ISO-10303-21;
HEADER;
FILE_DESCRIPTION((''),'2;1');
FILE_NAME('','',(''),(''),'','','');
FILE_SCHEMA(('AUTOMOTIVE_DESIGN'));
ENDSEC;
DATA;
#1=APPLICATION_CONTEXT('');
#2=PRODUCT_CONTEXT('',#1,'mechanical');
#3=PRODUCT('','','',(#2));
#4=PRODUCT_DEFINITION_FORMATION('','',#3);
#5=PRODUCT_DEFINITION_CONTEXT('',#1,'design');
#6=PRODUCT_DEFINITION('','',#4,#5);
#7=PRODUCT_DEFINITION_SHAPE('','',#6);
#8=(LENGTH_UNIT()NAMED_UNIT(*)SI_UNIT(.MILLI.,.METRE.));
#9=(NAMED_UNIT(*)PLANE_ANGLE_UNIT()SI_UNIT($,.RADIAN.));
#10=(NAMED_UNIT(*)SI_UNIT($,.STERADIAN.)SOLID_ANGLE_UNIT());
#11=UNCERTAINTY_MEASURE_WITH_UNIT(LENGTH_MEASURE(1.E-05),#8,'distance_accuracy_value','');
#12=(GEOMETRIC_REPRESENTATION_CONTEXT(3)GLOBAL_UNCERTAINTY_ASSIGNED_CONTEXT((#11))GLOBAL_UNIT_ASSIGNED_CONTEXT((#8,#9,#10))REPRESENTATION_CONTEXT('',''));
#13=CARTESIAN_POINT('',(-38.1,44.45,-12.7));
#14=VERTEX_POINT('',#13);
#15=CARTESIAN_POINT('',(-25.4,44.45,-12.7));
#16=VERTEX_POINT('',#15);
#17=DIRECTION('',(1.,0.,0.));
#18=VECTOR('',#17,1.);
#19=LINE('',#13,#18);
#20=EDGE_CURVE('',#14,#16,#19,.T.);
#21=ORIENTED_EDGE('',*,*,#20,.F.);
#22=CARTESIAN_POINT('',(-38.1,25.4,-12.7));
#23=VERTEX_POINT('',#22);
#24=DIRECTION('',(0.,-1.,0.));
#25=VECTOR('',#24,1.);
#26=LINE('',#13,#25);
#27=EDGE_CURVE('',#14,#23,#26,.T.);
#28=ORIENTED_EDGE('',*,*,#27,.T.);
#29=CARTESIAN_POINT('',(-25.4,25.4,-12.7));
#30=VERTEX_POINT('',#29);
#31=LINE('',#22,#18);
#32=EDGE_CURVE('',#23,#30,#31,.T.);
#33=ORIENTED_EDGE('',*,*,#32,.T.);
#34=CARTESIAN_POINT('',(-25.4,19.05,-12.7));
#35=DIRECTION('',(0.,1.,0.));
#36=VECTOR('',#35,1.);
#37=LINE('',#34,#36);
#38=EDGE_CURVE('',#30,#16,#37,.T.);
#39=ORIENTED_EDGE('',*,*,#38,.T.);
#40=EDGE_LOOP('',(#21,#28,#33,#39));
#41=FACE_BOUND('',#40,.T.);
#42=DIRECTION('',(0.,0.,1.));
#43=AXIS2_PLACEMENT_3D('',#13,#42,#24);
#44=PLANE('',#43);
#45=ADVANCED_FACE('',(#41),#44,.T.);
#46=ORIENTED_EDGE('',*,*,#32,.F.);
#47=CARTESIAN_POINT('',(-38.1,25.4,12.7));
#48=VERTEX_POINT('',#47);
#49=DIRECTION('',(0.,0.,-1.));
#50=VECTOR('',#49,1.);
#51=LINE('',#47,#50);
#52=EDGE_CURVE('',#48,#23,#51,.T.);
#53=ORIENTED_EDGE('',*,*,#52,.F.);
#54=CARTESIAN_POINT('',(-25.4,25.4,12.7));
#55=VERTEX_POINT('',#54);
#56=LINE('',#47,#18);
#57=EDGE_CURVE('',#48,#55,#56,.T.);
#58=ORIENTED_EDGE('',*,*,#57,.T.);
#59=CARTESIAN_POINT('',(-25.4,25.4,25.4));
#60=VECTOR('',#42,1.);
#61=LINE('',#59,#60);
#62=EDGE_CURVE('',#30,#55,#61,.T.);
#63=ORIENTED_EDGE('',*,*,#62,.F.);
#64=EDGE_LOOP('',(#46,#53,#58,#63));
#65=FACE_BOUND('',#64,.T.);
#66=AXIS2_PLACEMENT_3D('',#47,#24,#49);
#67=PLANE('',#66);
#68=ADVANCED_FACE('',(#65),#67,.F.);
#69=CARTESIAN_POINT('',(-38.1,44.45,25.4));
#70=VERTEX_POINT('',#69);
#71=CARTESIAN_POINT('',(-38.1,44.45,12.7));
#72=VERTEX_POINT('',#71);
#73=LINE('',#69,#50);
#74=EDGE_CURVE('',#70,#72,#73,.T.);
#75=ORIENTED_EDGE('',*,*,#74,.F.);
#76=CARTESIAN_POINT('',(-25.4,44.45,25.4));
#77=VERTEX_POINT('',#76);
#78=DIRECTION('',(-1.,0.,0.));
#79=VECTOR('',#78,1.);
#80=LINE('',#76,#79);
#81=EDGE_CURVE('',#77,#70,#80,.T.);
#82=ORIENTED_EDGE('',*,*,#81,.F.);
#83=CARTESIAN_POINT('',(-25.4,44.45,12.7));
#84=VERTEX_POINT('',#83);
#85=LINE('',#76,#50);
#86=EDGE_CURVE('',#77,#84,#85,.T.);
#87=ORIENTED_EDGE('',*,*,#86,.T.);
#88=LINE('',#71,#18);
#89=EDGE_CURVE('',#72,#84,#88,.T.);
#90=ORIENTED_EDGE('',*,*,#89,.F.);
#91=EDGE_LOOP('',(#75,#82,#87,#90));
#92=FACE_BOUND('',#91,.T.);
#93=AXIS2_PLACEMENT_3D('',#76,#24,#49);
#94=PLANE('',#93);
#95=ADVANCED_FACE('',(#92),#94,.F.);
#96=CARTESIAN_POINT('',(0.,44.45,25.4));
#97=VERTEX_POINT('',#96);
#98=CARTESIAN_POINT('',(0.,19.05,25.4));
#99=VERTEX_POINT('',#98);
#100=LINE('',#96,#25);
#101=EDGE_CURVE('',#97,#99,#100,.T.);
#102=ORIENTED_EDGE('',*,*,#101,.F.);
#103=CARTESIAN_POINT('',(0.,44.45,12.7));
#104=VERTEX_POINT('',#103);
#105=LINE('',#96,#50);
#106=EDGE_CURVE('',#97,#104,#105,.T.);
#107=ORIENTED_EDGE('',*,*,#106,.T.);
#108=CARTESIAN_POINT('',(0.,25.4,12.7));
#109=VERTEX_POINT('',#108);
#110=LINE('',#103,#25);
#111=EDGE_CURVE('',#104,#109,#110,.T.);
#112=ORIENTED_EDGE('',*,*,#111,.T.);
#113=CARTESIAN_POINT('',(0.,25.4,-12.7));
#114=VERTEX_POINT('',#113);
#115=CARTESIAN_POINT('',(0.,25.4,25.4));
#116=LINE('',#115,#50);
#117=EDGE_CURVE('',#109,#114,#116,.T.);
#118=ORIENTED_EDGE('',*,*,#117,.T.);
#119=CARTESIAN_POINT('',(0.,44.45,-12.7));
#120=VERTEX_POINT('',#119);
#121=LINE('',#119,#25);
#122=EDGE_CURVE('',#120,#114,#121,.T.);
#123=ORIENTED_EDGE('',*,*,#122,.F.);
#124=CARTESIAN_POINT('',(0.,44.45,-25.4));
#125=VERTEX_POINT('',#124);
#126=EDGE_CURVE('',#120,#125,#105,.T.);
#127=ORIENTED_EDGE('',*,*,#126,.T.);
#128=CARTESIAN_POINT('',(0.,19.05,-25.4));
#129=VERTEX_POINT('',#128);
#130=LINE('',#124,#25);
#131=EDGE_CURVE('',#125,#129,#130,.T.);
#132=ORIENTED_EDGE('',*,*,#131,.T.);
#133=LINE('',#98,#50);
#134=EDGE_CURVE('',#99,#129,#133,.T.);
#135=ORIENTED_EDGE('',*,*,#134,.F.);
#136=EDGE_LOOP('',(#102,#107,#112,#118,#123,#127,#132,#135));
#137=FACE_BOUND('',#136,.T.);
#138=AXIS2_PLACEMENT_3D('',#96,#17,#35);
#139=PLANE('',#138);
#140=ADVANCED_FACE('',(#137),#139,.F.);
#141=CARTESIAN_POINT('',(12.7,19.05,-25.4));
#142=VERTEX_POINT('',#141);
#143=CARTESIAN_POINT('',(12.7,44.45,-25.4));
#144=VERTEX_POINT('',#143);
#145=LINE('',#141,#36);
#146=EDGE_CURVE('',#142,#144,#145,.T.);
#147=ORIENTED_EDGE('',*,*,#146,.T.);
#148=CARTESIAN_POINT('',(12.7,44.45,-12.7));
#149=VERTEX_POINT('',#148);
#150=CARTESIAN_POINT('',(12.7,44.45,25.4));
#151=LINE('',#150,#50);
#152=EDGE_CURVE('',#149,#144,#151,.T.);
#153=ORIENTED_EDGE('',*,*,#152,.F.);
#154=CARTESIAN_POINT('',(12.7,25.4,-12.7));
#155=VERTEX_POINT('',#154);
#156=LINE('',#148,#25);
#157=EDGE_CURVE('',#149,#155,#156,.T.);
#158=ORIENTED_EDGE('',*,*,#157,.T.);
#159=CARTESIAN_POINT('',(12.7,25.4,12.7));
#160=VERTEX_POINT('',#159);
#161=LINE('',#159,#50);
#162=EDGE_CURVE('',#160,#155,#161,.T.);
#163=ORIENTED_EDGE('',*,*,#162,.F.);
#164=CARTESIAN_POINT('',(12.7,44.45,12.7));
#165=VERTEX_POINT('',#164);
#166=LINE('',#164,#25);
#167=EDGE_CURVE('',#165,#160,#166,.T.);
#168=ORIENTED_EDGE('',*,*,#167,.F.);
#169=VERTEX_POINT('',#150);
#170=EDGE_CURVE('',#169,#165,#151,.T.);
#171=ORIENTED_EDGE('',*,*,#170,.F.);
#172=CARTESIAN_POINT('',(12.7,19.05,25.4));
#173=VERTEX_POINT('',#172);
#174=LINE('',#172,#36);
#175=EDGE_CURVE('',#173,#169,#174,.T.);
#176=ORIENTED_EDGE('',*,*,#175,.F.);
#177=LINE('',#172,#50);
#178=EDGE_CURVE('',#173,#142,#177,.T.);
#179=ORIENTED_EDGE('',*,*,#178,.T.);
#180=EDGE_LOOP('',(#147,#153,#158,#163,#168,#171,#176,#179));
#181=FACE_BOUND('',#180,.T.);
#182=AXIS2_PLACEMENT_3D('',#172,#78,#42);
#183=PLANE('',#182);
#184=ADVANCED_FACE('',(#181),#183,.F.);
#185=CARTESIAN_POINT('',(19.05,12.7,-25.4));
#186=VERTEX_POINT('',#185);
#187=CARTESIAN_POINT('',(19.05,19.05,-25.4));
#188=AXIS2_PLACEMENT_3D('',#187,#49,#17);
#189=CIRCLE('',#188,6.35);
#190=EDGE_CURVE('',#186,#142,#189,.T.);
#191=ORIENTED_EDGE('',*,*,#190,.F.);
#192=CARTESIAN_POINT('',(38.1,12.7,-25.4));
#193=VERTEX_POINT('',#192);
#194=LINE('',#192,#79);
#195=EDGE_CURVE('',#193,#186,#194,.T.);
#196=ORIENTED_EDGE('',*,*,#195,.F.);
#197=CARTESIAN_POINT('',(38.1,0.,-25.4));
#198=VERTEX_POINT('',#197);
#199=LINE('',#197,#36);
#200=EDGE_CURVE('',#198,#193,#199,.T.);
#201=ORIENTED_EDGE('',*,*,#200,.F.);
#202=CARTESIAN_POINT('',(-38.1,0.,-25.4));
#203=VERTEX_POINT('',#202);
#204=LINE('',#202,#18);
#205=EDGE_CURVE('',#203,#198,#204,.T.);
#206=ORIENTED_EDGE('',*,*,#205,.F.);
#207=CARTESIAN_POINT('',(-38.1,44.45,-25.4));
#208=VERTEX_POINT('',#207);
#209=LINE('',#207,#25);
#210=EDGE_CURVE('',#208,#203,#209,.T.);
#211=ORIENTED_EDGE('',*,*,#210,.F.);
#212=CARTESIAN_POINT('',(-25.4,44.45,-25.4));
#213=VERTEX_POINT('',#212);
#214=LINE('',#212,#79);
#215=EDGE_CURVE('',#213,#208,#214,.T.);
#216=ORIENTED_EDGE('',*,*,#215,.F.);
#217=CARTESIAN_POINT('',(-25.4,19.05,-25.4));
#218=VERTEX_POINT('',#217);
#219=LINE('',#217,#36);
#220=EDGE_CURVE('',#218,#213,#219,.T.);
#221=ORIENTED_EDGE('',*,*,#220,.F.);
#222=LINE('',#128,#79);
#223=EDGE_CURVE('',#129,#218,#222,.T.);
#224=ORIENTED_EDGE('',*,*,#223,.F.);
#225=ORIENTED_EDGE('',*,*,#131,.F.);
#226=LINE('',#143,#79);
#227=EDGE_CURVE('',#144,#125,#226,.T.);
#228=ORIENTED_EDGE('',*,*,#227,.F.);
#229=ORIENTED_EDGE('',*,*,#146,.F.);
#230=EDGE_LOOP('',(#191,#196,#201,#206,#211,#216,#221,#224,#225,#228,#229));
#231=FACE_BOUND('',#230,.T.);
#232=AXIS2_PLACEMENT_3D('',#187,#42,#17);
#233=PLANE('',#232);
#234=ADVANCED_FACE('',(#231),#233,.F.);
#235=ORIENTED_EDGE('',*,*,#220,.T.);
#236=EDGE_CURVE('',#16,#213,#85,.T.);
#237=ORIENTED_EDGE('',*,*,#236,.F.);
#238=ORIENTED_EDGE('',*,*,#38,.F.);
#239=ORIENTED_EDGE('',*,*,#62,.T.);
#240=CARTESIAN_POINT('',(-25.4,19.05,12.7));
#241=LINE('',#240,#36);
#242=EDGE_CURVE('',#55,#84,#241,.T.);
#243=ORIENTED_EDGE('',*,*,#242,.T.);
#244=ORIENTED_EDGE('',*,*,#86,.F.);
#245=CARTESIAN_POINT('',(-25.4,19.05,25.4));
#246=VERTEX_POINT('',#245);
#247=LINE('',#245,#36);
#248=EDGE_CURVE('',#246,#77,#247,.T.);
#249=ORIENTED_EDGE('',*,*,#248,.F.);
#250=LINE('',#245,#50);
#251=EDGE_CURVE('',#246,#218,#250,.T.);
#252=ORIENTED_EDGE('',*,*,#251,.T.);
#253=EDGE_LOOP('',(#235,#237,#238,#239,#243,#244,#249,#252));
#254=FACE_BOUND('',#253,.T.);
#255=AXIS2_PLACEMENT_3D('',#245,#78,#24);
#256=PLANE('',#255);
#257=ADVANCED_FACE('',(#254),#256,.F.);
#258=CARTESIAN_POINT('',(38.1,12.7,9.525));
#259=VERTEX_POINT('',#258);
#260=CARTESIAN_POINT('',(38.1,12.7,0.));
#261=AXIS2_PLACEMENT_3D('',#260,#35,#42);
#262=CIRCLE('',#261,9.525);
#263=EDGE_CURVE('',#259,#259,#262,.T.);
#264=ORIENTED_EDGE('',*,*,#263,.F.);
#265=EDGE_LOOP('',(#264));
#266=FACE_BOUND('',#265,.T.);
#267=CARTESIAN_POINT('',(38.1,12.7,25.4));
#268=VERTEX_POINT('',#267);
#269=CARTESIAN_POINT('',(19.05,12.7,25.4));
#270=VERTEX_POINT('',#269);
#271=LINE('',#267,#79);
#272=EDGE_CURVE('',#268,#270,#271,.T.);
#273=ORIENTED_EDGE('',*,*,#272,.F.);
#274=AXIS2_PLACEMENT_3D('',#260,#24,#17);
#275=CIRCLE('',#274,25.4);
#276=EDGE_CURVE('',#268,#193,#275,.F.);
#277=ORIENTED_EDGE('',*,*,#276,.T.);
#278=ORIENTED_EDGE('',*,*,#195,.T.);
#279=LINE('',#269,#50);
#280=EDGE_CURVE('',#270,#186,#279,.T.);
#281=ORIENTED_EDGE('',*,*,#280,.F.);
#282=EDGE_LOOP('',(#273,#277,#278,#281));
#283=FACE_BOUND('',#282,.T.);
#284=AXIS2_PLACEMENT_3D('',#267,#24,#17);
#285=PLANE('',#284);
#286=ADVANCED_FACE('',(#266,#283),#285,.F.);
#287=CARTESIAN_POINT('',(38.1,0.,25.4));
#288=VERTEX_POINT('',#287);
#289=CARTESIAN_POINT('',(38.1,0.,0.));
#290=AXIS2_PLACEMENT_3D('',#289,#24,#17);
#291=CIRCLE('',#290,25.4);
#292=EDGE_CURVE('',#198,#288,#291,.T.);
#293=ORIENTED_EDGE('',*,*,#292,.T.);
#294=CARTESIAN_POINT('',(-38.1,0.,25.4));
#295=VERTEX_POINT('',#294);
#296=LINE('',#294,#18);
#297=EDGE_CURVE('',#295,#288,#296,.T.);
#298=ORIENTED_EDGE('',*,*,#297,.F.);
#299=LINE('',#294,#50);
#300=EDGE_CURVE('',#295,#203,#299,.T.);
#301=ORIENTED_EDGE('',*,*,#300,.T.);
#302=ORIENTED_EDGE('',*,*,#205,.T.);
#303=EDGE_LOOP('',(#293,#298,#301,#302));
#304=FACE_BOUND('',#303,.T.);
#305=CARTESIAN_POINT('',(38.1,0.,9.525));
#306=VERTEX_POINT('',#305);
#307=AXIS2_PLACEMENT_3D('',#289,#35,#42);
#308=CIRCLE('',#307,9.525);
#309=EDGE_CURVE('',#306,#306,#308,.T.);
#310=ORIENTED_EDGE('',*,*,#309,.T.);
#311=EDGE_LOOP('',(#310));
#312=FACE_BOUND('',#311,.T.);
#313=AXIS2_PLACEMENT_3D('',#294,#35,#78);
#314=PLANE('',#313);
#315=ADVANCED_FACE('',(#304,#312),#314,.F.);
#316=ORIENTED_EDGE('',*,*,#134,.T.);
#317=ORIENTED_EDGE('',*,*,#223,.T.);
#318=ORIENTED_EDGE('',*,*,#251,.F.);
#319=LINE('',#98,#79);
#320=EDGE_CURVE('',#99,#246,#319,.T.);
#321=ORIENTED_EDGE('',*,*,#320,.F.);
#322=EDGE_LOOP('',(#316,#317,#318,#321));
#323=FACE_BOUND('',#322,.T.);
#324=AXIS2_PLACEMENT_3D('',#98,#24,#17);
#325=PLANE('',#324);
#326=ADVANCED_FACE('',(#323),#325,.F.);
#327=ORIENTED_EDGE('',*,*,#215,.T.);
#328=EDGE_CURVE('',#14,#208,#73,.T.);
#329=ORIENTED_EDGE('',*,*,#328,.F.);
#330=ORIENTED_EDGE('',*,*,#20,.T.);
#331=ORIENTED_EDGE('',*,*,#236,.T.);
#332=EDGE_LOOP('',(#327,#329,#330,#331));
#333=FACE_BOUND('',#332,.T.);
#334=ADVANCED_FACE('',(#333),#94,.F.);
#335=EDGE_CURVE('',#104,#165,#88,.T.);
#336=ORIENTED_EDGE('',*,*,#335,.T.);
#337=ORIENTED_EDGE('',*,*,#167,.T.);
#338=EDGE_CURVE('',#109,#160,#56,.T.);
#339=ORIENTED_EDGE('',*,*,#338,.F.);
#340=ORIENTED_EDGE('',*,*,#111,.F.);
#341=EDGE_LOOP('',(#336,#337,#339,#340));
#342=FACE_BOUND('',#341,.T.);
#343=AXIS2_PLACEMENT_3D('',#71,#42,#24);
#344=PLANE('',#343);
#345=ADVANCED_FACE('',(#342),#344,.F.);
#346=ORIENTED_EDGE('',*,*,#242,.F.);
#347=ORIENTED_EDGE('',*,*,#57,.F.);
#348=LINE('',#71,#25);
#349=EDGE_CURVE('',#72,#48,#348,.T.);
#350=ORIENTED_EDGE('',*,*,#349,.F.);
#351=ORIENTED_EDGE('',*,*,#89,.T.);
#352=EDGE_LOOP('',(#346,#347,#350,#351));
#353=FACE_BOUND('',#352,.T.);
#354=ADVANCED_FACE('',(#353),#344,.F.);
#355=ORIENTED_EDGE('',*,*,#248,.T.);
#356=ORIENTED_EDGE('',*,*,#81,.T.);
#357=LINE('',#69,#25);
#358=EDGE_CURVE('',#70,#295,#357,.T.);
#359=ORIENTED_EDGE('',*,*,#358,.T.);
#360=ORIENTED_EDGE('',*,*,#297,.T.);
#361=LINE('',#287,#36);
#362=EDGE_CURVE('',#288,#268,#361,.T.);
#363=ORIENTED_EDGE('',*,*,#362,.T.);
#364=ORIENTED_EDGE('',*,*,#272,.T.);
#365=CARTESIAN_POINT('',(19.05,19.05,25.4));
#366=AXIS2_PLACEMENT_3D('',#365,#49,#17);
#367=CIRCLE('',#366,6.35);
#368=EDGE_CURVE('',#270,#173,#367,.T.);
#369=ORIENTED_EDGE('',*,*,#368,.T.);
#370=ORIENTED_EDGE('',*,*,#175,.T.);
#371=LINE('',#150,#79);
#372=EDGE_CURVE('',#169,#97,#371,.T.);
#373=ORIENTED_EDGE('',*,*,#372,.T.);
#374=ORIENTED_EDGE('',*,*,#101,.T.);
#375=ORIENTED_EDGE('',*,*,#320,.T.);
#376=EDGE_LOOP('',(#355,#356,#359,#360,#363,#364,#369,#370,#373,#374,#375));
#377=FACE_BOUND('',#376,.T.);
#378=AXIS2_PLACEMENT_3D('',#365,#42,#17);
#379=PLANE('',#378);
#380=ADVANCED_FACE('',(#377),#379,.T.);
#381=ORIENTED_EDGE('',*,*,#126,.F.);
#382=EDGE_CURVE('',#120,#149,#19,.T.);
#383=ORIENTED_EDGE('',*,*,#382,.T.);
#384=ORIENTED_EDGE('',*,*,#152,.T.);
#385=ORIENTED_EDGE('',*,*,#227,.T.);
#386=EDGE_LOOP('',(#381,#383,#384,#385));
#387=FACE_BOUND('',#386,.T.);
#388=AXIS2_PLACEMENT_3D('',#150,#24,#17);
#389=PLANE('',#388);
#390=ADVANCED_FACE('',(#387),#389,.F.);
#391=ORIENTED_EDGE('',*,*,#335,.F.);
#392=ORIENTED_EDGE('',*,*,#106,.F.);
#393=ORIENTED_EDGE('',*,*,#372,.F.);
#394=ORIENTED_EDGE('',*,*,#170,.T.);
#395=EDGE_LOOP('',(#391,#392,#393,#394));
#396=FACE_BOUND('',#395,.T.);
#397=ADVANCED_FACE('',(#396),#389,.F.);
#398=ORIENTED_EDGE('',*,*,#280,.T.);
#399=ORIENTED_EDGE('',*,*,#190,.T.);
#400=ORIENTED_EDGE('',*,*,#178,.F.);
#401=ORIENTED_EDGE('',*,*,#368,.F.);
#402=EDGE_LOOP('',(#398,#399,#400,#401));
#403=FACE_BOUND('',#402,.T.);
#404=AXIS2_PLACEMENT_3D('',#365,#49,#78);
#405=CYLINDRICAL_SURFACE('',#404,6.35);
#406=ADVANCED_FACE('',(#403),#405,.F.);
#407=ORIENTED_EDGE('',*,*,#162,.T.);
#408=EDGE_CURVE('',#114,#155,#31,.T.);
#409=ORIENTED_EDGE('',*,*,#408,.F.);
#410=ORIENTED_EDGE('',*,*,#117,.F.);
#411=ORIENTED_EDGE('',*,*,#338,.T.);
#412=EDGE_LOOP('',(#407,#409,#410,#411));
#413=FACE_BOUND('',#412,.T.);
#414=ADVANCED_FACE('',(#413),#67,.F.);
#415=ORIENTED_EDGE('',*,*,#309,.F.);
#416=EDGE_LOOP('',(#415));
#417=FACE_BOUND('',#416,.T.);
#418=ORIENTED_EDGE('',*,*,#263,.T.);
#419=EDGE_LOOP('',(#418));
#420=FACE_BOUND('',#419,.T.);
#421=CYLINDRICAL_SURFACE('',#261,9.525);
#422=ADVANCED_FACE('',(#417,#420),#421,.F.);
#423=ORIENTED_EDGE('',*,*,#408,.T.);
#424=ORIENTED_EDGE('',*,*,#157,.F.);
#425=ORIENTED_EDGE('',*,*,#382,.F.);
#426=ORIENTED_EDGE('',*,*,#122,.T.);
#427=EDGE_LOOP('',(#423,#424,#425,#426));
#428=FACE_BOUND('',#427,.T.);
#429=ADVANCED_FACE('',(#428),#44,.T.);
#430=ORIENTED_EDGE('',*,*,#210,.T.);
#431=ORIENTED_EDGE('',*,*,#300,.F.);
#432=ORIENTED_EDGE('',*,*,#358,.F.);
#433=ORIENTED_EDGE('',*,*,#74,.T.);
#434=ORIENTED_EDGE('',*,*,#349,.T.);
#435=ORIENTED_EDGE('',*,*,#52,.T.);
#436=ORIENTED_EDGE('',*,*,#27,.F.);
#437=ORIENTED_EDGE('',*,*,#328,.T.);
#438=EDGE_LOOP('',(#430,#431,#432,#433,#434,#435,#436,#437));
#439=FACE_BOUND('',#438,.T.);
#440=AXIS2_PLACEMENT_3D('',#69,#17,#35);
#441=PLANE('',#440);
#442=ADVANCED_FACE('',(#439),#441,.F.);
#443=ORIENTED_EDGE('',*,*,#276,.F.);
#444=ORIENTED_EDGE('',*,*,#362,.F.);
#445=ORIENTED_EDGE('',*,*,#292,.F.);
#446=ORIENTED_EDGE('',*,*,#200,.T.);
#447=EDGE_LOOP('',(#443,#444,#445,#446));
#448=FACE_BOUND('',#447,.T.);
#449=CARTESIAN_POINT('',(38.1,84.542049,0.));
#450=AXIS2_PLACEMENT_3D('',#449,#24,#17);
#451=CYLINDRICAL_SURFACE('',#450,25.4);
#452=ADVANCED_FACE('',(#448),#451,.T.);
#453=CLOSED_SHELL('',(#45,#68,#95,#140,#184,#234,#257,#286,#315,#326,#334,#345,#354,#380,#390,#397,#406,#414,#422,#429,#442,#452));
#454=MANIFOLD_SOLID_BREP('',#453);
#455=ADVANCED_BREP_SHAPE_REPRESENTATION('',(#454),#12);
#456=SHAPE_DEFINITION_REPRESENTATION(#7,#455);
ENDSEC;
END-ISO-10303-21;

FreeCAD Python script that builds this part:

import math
import FreeCAD as App
import Part
import Sketcher

V = App.Vector
Q = App.Units.Quantity


def add_polygon(sketch, points):
    """Adds a closed chain of lines whose ends are joined by coincident constraints."""
    first, n = sketch.GeometryCount, len(points)
    for a, b in zip(points, points[1:] + points[:1]):
        sketch.addGeometry(Part.LineSegment(App.Vector(*a, 0), App.Vector(*b, 0)), False)
    for i in range(n):
        sketch.addConstraint(Sketcher.Constraint("Coincident", first + i, 2, first + (i + 1) % n, 1))

doc = App.newDocument("Part")
body = doc.addObject("PartDesign::Body", "Body")

sketch1 = doc.addObject("Sketcher::SketchObject", "Sketch")
body.addObject(sketch1)
sketch1.AttachmentSupport = (doc.XY_Plane, [""])
sketch1.MapMode = "FlatFace"
sketch1.addGeometry([
    Part.LineSegment(V(-38.1, 0, 0), V(38.1, 0, 0)),
    Part.LineSegment(V(38.1, 0, 0), V(38.1, 12.7, 0)),
    Part.LineSegment(V(38.1, 12.7, 0), V(19.05, 12.7, 0)),
    Part.ArcOfCircle(Part.Circle(V(19.05, 19.05, 0), V(0, 0, 1), 6.35), math.radians(180), math.radians(270)),
    Part.LineSegment(V(12.7, 19.05, 0), V(12.7, 44.45, 0)),
    Part.LineSegment(V(12.7, 44.45, 0), V(0, 44.45, 0)),
    Part.LineSegment(V(0, 44.45, 0), V(0, 19.05, 0)),
    Part.LineSegment(V(0, 19.05, 0), V(-25.4, 19.05, 0)),
    Part.LineSegment(V(-25.4, 19.05, 0), V(-25.4, 44.45, 0)),
    Part.LineSegment(V(-25.4, 44.45, 0), V(-38.1, 44.45, 0)),
    Part.LineSegment(V(-38.1, 44.45, 0), V(-38.1, 0, 0)),
], False)
sketch1.addConstraint([
    Sketcher.Constraint("Coincident", 0, 2, 1, 1),
    Sketcher.Constraint("Coincident", 1, 2, 2, 1),
    Sketcher.Constraint("Tangent", 2, 2, 3, 2),
    Sketcher.Constraint("Tangent", 3, 1, 4, 1),
    Sketcher.Constraint("Coincident", 4, 2, 5, 1),
    Sketcher.Constraint("Coincident", 5, 2, 6, 1),
    Sketcher.Constraint("Coincident", 6, 2, 7, 1),
    Sketcher.Constraint("Coincident", 7, 2, 8, 1),
    Sketcher.Constraint("Coincident", 8, 2, 9, 1),
    Sketcher.Constraint("Coincident", 9, 2, 10, 1),
    Sketcher.Constraint("Coincident", 10, 2, 0, 1),
    Sketcher.Constraint("Horizontal", 0),
    Sketcher.Constraint("Vertical", 1),
    Sketcher.Constraint("Horizontal", 2),
    Sketcher.Constraint("Vertical", 4),
    Sketcher.Constraint("Horizontal", 5),
    Sketcher.Constraint("Vertical", 6),
    Sketcher.Constraint("Horizontal", 7),
    Sketcher.Constraint("Vertical", 8),
    Sketcher.Constraint("Horizontal", 9),
    Sketcher.Constraint("Vertical", 10),
    Sketcher.Constraint("Symmetric", 0, 2, 10, 2, -1, 1),
    Sketcher.Constraint("PointOnObject", 5, 2, -2),
    Sketcher.Constraint("Horizontal", 3, 1, 6, 2),
    Sketcher.Constraint("Horizontal", 5, 2, 8, 2),
    Sketcher.Constraint("Equal", 5, 9),
    Sketcher.Constraint("Equal", 9, 1),
    Sketcher.Constraint("Equal", 7, 4),
    Sketcher.Constraint("DistanceX", 0, 1, 0, 2, Q("3 in")),
    Sketcher.Constraint("DistanceX", 7, 2, 7, 1, Q("1 in")),
    Sketcher.Constraint("Radius", 3, Q("0.25 in")),
])
pad1 = doc.addObject("PartDesign::Pad", "Pad")
body.addObject(pad1)
pad1.Profile = sketch1
pad1.Length = Q("2 in")
pad1.Midplane = True

sketch2 = doc.addObject("Sketcher::SketchObject", "Sketch001")
body.addObject(sketch2)
sketch2.AttachmentSupport = (doc.XZ_Plane, [""])
sketch2.MapMode = "FlatFace"
sketch2.addGeometry(Part.Circle(V(38.1, 0, 0), V(0, 0, 1), 25.4), False)
sketch2.addConstraint([
    Sketcher.Constraint("PointOnObject", 0, 3, -1),
    Sketcher.Constraint("Diameter", 0, Q("2 in")),
    Sketcher.Constraint("DistanceX", -1, 1, 0, 3, Q("1.5 in")),
])
pad2 = doc.addObject("PartDesign::Pad", "Pad001")
body.addObject(pad2)
pad2.Profile = sketch2
pad2.Length = Q("0.5 in")
pad2.Reversed = True

sketch3 = doc.addObject("Sketcher::SketchObject", "Sketch002")
body.addObject(sketch3)
sketch3.AttachmentSupport = (doc.XZ_Plane, [""])
sketch3.MapMode = "FlatFace"
sketch3.AttachmentOffset = App.Placement(V(0, 0, -0.5 * 25.4), App.Rotation())
sketch3.addGeometry(Part.Circle(V(38.1, 0, 0), V(0, 0, 1), 9.525), False)
sketch3.addConstraint([
    Sketcher.Constraint("PointOnObject", 0, 3, -1),
    Sketcher.Constraint("Diameter", 0, Q("0.75 in")),
    Sketcher.Constraint("DistanceX", -1, 1, 0, 3, Q("1.5 in")),
])
doc.recompute()
hole = doc.addObject("PartDesign::Hole", "Hole")
body.addObject(hole)
hole.Profile = sketch3
hole.ThreadType = "None"
hole.Diameter = Q("0.75 in")
hole.DepthType = "ThroughAll"
hole.Reversed = True

sketch4 = doc.addObject("Sketcher::SketchObject", "Sketch003")
body.addObject(sketch4)
sketch4.AttachmentSupport = (doc.YZ_Plane, [""])
sketch4.MapMode = "FlatFace"
sketch4.AttachmentOffset = App.Placement(V(0, 0, 0.5 * 25.4), App.Rotation())
add_polygon(sketch4, [(44.45, 12.7), (25.4, 12.7), (25.4, -12.7), (44.45, -12.7)])
sketch4.addConstraint([
    Sketcher.Constraint("Horizontal", 0),
    Sketcher.Constraint("Vertical", 1),
    Sketcher.Constraint("Horizontal", 2),
    Sketcher.Constraint("Vertical", 3),
    Sketcher.Constraint("DistanceY", 1, 2, 1, 1, Q("1 in")),
    Sketcher.Constraint("DistanceX", -1, 1, 0, 2, Q("1 in")),
    Sketcher.Constraint("DistanceX", 0, 2, 0, 1, Q("0.75 in")),
    Sketcher.Constraint("DistanceY", -1, 1, 0, 2, Q("0.5 in")),
])
pocket1 = doc.addObject("PartDesign::Pocket", "Pocket")
body.addObject(pocket1)
pocket1.Profile = sketch4
pocket1.Type = "ThroughAll"

doc.recompute()
